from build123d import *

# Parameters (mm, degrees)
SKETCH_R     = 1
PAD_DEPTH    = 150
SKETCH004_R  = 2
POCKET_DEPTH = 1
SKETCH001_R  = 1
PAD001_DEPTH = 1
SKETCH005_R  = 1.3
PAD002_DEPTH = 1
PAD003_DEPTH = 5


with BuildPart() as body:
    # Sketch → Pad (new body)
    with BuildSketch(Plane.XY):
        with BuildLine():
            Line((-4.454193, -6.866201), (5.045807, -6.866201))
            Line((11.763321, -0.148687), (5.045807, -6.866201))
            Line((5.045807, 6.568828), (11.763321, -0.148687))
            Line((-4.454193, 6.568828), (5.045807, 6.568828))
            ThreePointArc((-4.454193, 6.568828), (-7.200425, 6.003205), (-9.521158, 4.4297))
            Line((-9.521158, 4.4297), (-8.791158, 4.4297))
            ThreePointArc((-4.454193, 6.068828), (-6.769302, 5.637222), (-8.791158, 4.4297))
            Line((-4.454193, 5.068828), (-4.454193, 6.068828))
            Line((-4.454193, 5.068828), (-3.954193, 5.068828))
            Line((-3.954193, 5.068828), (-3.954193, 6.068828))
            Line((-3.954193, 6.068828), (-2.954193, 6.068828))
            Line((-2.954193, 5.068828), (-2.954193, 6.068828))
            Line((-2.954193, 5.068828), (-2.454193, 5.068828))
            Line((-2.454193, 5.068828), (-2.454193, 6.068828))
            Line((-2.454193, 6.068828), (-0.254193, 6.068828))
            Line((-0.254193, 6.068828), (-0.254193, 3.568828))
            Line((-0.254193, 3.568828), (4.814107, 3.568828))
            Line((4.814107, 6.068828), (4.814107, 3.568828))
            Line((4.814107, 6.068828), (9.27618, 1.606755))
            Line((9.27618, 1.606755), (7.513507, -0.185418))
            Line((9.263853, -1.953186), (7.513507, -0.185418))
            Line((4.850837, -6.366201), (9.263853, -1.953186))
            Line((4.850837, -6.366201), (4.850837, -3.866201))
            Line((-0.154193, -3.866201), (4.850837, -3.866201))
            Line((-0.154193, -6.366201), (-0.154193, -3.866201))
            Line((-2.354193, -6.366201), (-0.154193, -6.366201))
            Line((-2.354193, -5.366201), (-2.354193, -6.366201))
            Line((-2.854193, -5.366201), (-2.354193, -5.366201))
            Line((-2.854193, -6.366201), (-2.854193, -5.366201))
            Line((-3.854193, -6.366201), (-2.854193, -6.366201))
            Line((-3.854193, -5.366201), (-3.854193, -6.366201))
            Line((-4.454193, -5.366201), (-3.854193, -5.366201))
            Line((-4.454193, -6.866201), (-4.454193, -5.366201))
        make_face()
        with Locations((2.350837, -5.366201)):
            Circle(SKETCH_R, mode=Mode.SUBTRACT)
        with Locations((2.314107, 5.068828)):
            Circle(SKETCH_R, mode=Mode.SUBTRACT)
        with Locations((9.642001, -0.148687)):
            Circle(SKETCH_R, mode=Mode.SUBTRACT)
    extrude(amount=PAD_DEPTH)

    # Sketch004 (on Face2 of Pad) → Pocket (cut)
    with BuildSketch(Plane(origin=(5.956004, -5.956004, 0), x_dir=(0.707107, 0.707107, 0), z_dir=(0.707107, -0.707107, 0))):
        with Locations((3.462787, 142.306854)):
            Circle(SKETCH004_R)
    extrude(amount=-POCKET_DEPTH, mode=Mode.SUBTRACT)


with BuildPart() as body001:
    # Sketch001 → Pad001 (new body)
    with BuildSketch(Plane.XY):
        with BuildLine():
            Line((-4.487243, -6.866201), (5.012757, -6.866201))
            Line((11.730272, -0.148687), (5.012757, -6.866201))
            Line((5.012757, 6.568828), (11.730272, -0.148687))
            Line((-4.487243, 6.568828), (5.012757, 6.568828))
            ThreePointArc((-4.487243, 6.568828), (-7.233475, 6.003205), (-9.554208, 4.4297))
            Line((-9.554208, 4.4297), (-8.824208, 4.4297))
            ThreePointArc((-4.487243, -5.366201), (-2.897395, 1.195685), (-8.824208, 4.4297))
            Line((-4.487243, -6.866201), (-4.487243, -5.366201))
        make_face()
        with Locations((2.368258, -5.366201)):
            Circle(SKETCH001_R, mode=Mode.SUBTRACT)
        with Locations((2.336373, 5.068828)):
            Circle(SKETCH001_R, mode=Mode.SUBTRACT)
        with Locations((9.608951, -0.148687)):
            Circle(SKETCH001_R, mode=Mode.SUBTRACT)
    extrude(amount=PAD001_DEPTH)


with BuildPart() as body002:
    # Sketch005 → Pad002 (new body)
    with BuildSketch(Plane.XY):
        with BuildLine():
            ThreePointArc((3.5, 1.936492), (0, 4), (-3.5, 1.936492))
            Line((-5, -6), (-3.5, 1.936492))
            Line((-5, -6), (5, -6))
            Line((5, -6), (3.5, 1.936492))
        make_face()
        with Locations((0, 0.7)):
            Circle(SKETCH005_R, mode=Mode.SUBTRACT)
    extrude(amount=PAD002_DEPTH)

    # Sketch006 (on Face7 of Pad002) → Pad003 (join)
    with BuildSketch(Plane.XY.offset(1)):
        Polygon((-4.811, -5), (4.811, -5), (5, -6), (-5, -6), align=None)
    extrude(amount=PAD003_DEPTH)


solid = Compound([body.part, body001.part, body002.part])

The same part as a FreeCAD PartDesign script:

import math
import FreeCAD as App
import Part
import Sketcher
from FreeCAD import Vector

doc = App.newDocument("Part")
body = doc.addObject("PartDesign::Body", "Body")

# Sketch on XY plane
sketch1 = body.newObject("Sketcher::SketchObject", "Sketch")
sketch1.AttachmentSupport = (doc.getObject("XY_Plane"), [""])
sketch1.MapMode = "FlatFace"
sketch1.addGeometry([
    Part.LineSegment(Vector(-4.454193, -6.866201, 0), Vector(5.045807, -6.866201, 0)),  # 0
    Part.LineSegment(Vector(5.045807, -6.866201, 0), Vector(11.763321, -0.148687, 0)),  # 1
    Part.LineSegment(Vector(11.763321, -0.148687, 0), Vector(5.045807, 6.568828, 0)),  # 2
    Part.LineSegment(Vector(5.045807, 6.568828, 0), Vector(-4.454193, 6.568828, 0)),  # 3
    Part.ArcOfCircle(Part.Circle(Vector(-4.40552, -0.617104, 0), Vector(0, 0, 1), 7.186097), math.radians(90.388083), math.radians(135.388083)),  # 4
    Part.LineSegment(Vector(-9.521158, 4.4297, 0), Vector(-8.791158, 4.4297, 0)),  # 5
    Part.ArcOfCircle(Part.Circle(Vector(-4.405522, -0.617098, 0), Vector(0, 0, 1), 6.686103), math.radians(90.417085), math.radians(130.99044)),  # 6
    Part.LineSegment(Vector(-4.454193, 6.068828, 0), Vector(-4.454193, 5.068828, 0)),  # 7
    Part.LineSegment(Vector(-4.454193, 5.068828, 0), Vector(-3.954193, 5.068828, 0)),  # 8
    Part.LineSegment(Vector(-3.954193, 5.068828, 0), Vector(-3.954193, 6.068828, 0)),  # 9
    Part.LineSegment(Vector(-3.954193, 6.068828, 0), Vector(-2.954193, 6.068828, 0)),  # 10
    Part.LineSegment(Vector(-2.954193, 6.068828, 0), Vector(-2.954193, 5.068828, 0)),  # 11
    Part.LineSegment(Vector(-2.954193, 5.068828, 0), Vector(-2.454193, 5.068828, 0)),  # 12
    Part.LineSegment(Vector(-2.454193, 5.068828, 0), Vector(-2.454193, 6.068828, 0)),  # 13
    Part.LineSegment(Vector(-2.454193, 6.068828, 0), Vector(-0.254193, 6.068828, 0)),  # 14
    Part.LineSegment(Vector(-0.254193, 6.068828, 0), Vector(-0.254193, 3.568828, 0)),  # 15
    Part.LineSegment(Vector(-0.254193, 3.568828, 0), Vector(4.814107, 3.568828, 0)),  # 16
    Part.LineSegment(Vector(4.814107, 3.568828, 0), Vector(4.814107, 6.068828, 0)),  # 17
    Part.LineSegment(Vector(4.814107, 6.068828, 0), Vector(9.27618, 1.606755, 0)),  # 18
    Part.LineSegment(Vector(9.27618, 1.606755, 0), Vector(7.513507, -0.185418, 0)),  # 19
    Part.LineSegment(Vector(7.513507, -0.185418, 0), Vector(9.263853, -1.953186, 0)),  # 20
    Part.LineSegment(Vector(9.263853, -1.953186, 0), Vector(4.850837, -6.366201, 0)),  # 21
    Part.LineSegment(Vector(4.850837, -6.366201, 0), Vector(4.850837, -3.866201, 0)),  # 22
    Part.LineSegment(Vector(4.850837, -3.866201, 0), Vector(-0.154193, -3.866201, 0)),  # 23
    Part.LineSegment(Vector(-0.154193, -3.866201, 0), Vector(-0.154193, -6.366201, 0)),  # 24
    Part.LineSegment(Vector(-0.154193, -6.366201, 0), Vector(-2.354193, -6.366201, 0)),  # 25
    Part.LineSegment(Vector(-2.354193, -6.366201, 0), Vector(-2.354193, -5.366201, 0)),  # 26
    Part.LineSegment(Vector(-2.354193, -5.366201, 0), Vector(-2.854193, -5.366201, 0)),  # 27
    Part.LineSegment(Vector(-2.854193, -5.366201, 0), Vector(-2.854193, -6.366201, 0)),  # 28
    Part.LineSegment(Vector(-2.854193, -6.366201, 0), Vector(-3.854193, -6.366201, 0)),  # 29
    Part.LineSegment(Vector(-3.854193, -6.366201, 0), Vector(-3.854193, -5.366201, 0)),  # 30
    Part.LineSegment(Vector(-3.854193, -5.366201, 0), Vector(-4.454193, -5.366201, 0)),  # 31
    Part.LineSegment(Vector(-4.454193, -5.366201, 0), Vector(-4.454193, -6.866201, 0)),  # 32
    Part.Circle(Vector(2.350837, -5.366201, 0), Vector(0, 0, 1), 1),  # 33
    Part.Circle(Vector(9.642001, -0.148687, 0), Vector(0, 0, 1), 1),  # 34
    Part.Circle(Vector(2.314107, 5.068828, 0), Vector(0, 0, 1), 1),  # 35
], False)
sketch1.addConstraint([
    Sketcher.Constraint("Coincident", 0, 2, 1, 1),
    Sketcher.Constraint("Coincident", 1, 2, 2, 1),
    Sketcher.Constraint("Coincident", 2, 2, 3, 1),
    Sketcher.Constraint("Coincident", 3, 2, 4, 1),
    Sketcher.Constraint("Coincident", 4, 2, 5, 1),
    Sketcher.Constraint("Coincident", 5, 2, 6, 2),
    Sketcher.Constraint("Coincident", 6, 1, 7, 1),
    Sketcher.Constraint("Coincident", 7, 2, 8, 1),
    Sketcher.Constraint("Coincident", 8, 2, 9, 1),
    Sketcher.Constraint("Coincident", 9, 2, 10, 1),
    Sketcher.Constraint("Coincident", 10, 2, 11, 1),
    Sketcher.Constraint("Coincident", 11, 2, 12, 1),
    Sketcher.Constraint("Coincident", 12, 2, 13, 1),
    Sketcher.Constraint("Coincident", 13, 2, 14, 1),
    Sketcher.Constraint("Coincident", 14, 2, 15, 1),
    Sketcher.Constraint("Coincident", 15, 2, 16, 1),
    Sketcher.Constraint("Coincident", 16, 2, 17, 1),
    Sketcher.Constraint("Coincident", 17, 2, 18, 1),
    Sketcher.Constraint("Coincident", 18, 2, 19, 1),
    Sketcher.Constraint("Coincident", 19, 2, 20, 1),
    Sketcher.Constraint("Coincident", 20, 2, 21, 1),
    Sketcher.Constraint("Coincident", 21, 2, 22, 1),
    Sketcher.Constraint("Coincident", 22, 2, 23, 1),
    Sketcher.Constraint("Coincident", 23, 2, 24, 1),
    Sketcher.Constraint("Coincident", 24, 2, 25, 1),
    Sketcher.Constraint("Coincident", 25, 2, 26, 1),
    Sketcher.Constraint("Coincident", 26, 2, 27, 1),
    Sketcher.Constraint("Coincident", 27, 2, 28, 1),
    Sketcher.Constraint("Coincident", 28, 2, 29, 1),
    Sketcher.Constraint("Coincident", 29, 2, 30, 1),
    Sketcher.Constraint("Coincident", 30, 2, 31, 1),
    Sketcher.Constraint("Coincident", 31, 2, 32, 1),
    Sketcher.Constraint("Coincident", 32, 2, 0, 1),
    Sketcher.Constraint("Horizontal", 0),
    Sketcher.Constraint("Horizontal", 3),
    Sketcher.Constraint("Horizontal", 5),
    Sketcher.Constraint("Vertical", 7),
    Sketcher.Constraint("Horizontal", 8),
    Sketcher.Constraint("Vertical", 9),
    Sketcher.Constraint("Horizontal", 10),
    Sketcher.Constraint("Vertical", 11),
    Sketcher.Constraint("Horizontal", 12),
    Sketcher.Constraint("Vertical", 13),
    Sketcher.Constraint("Horizontal", 14),
    Sketcher.Constraint("Vertical", 15),
    Sketcher.Constraint("Horizontal", 16),
    Sketcher.Constraint("Vertical", 17),
    Sketcher.Constraint("Vertical", 22),
    Sketcher.Constraint("Horizontal", 23),
    Sketcher.Constraint("Vertical", 24),
    Sketcher.Constraint("Horizontal", 25),
    Sketcher.Constraint("Vertical", 26),
    Sketcher.Constraint("Horizontal", 27),
    Sketcher.Constraint("Vertical", 28),
    Sketcher.Constraint("Horizontal", 29),
    Sketcher.Constraint("Vertical", 30),
    Sketcher.Constraint("Horizontal", 31),
    Sketcher.Constraint("Vertical", 32),
    Sketcher.Constraint("Coincident", 6, 3, 4, 3),
    Sketcher.Constraint("Diameter", 33, 2.0),
    Sketcher.Constraint("Diameter", 34, 2.0),
    Sketcher.Constraint("Diameter", 35, 2.0),
    Sketcher.Constraint("DistanceX", 10, 1, 10, 2, 1.0),
    Sketcher.Constraint("DistanceX", 29, 2, 29, 1, 1.0),
    Sketcher.Constraint("DistanceY", 7, 2, 7, 1, 1.0),
    Sketcher.Constraint("DistanceY", 9, 1, 9, 2, 1.0),
    Sketcher.Constraint("DistanceY", 11, 2, 11, 1, 1.0),
    Sketcher.Constraint("DistanceY", 13, 1, 13, 2, 1.0),
    Sketcher.Constraint("DistanceY", 26, 1, 26, 2, 1.0),
    Sketcher.Constraint("DistanceY", 28, 2, 28, 1, 1.0),
    Sketcher.Constraint("DistanceY", 30, 1, 30, 2, 1.0),
    Sketcher.Constraint("DistanceX", 0, 1, 0, 2, 9.5),
    Sketcher.Constraint("DistanceX", 3, 2, 3, 1, 9.5),
    Sketcher.Constraint("DistanceX", 8, 1, 8, 2, 0.5),
    Sketcher.Constraint("DistanceX", 12, 1, 12, 2, 0.5),
    Sketcher.Constraint("DistanceX", 14, 1, 14, 2, 2.2),
    Sketcher.Constraint("DistanceX", 25, 2, 25, 1, 2.2),
    Sketcher.Constraint("DistanceX", 27, 2, 27, 1, 0.5),
    Sketcher.Constraint("DistanceX", 31, 2, 31, 1, 0.6),
    Sketcher.Constraint("DistanceY", 15, 2, 15, 1, 2.5),
    Sketcher.Constraint("DistanceY", 17, 1, 17, 2, 2.5),
    Sketcher.Constraint("DistanceY", 22, 1, 22, 2, 2.5),
    Sketcher.Constraint("DistanceY", 24, 2, 24, 1, 2.5),
    Sketcher.Constraint("DistanceY", 32, 2, 32, 1, 1.5),
    Sketcher.Constraint("DistanceY", 35, 3, 14, 2, 1.0),
    Sketcher.Constraint("DistanceY", 16, 2, 2, 2, 3.0),
    Sketcher.Constraint("DistanceY", 21, 2, 33, 3, 1.0),
    Sketcher.Constraint("Distance", 1, 9.499999),
    Sketcher.Constraint("Distance", 2, 9.5),
    Sketcher.Constraint("DistanceX", 5, 1, 5, 2, 0.73),
    Sketcher.Constraint("DistanceX", 3, 2, 8, 2, 0.5),
    Sketcher.Constraint("DistanceX", 35, 3, 16, 2, 2.5),
    Sketcher.Constraint("DistanceX", 33, 3, 21, 2, 2.5),
    Sketcher.Constraint("DistanceX", 16, 1, 16, 2, 5.0683),
    Sketcher.Constraint("DistanceX", -1, 1, 34, 3, 9.642001),
    Sketcher.Constraint("Radius", 4, 7.186097),
    Sketcher.Constraint("DistanceX", 23, 2, 23, 1, 5.00503),
    Sketcher.Constraint("DistanceY", 33, 3, -1, 1, 5.366201),
    Sketcher.Constraint("DistanceY", -1, 1, 4, 2, 4.4297),
    Sketcher.Constraint("DistanceX", 35, 3, 0, 2, 2.7317),
    Sketcher.Constraint("DistanceX", 16, 2, 19, 2, 2.6994),
    Sketcher.Constraint("DistanceY", 20, 2, 34, 3, 1.804499),
    Sketcher.Constraint("DistanceY", 20, 2, 1, 2, 1.804499),
    Sketcher.Constraint("DistanceX", 4, 3, -1, 1, 4.40552),
    Sketcher.Constraint("DistanceX", -1, 1, 1, 2, 11.763321),
    Sketcher.Constraint("DistanceX", -1, 1, 18, 2, 9.27618),
    Sketcher.Constraint("DistanceY", 19, 2, 34, 3, 0.036731),
    Sketcher.Constraint("DistanceX", 20, 2, 34, 3, 0.378148),
    Sketcher.Constraint("DistanceY", 20, 2, 18, 2, 3.559941),
])
pad1 = body.newObject("PartDesign::Pad", "Pad")
pad1.Profile = sketch1
pad1.Length = 150

# Sketch on an angled plane
sketch2 = body.newObject("Sketcher::SketchObject", "Sketch001")
sketch2.Placement = App.Placement(Vector(5.956004, -5.956004, 0), App.Rotation(Vector(0.707106781, 0.707106781, 0), Vector(0, 0, 0.999999999), Vector(0.707106781, -0.707106781, 0), "ZXY"))
sketch2.addGeometry(Part.Circle(Vector(3.462787, 142.306854, 0), Vector(0, 0, 1), 2), False)
sketch2.addConstraint([
    Sketcher.Constraint("Diameter", 0, 4.0),
    Sketcher.Constraint("DistanceX", -1, 1, 0, 3, 3.462787),
    Sketcher.Constraint("DistanceY", -1, 1, 0, 3, 142.306854),
])
pocket1 = body.newObject("PartDesign::Pocket", "Pocket")
pocket1.Profile = sketch2
pocket1.Length = 1
body2 = doc.addObject("PartDesign::Body", "Body001")

# Sketch on XY plane
sketch3 = body2.newObject("Sketcher::SketchObject", "Sketch002")
sketch3.AttachmentSupport = (doc.getObject("XY_Plane001"), [""])
sketch3.MapMode = "FlatFace"
sketch3.addGeometry([
    Part.LineSegment(Vector(-4.487243, -6.866201, 0), Vector(5.012757, -6.866201, 0)),  # 0
    Part.LineSegment(Vector(5.012757, -6.866201, 0), Vector(11.730272, -0.148687, 0)),  # 1
    Part.LineSegment(Vector(11.730272, -0.148687, 0), Vector(5.012757, 6.568828, 0)),  # 2
    Part.LineSegment(Vector(5.012757, 6.568828, 0), Vector(-4.487243, 6.568828, 0)),  # 3
    Part.ArcOfCircle(Part.Circle(Vector(-4.43857, -0.617104, 0), Vector(0, 0, 1), 7.186097), math.radians(90.388083), math.radians(135.388083)),  # 4
    Part.LineSegment(Vector(-9.554208, 4.4297, 0), Vector(-8.824208, 4.4297, 0)),  # 5
    Part.ArcOfCircle(Part.Circle(Vector(-7.968126, -1.049293, 0), Vector(0, 0, 1), 5.54547), math.radians(-51.119478), math.radians(98.880548)),  # 6
    Part.LineSegment(Vector(-4.487243, -5.366201, 0), Vector(-4.487243, -6.866201, 0)),  # 7
    Part.Circle(Vector(2.368258, -5.366201, 0), Vector(0, 0, 1), 1),  # 8
    Part.Circle(Vector(9.608951, -0.148687, 0), Vector(0, 0, 1), 1),  # 9
    Part.Circle(Vector(2.336373, 5.068828, 0), Vector(0, 0, 1), 1),  # 10
], False)
sketch3.addConstraint([
    Sketcher.Constraint("Coincident", 0, 2, 1, 1),
    Sketcher.Constraint("Coincident", 1, 2, 2, 1),
    Sketcher.Constraint("Coincident", 2, 2, 3, 1),
    Sketcher.Constraint("Coincident", 3, 2, 4, 1),
    Sketcher.Constraint("Coincident", 4, 2, 5, 1),
    Sketcher.Constraint("Coincident", 5, 2, 6, 2),
    Sketcher.Constraint("Coincident", 6, 1, 7, 1),
    Sketcher.Constraint("Coincident", 7, 2, 0, 1),
    Sketcher.Constraint("Horizontal", 0),
    Sketcher.Constraint("Horizontal", 3),
    Sketcher.Constraint("Horizontal", 5),
    Sketcher.Constraint("Vertical", 7),
    Sketcher.Constraint("Equal", 8, 9),
    Sketcher.Constraint("Equal", 9, 10),
    Sketcher.Constraint("Perpendicular", 1, 2),
    Sketcher.Constraint("Horizontal", 9, 3, 1, 2),
    Sketcher.Constraint("Horizontal", 8, 3, 6, 1),
    Sketcher.Constraint("Vertical", 0, 2, 2, 2),
    Sketcher.Constraint("Vertical", 3, 2, 6, 1),
    Sketcher.Constraint("Equal", 1, 2),
    Sketcher.Constraint("Diameter", 8, 2.0),
    Sketcher.Constraint("DistanceX", 0, 1, 0, 2, 9.5),
    Sketcher.Constraint("DistanceY", 7, 2, 7, 1, 1.5),
    Sketcher.Constraint("Distance", 1, 9.5),
    Sketcher.Constraint("DistanceX", 5, 1, 5, 2, 0.73),
    Sketcher.Constraint("DistanceY", 10, 3, 2, 2, 1.5),
    Sketcher.Constraint("Radius", 6, 5.54547),
    Sketcher.Constraint("Radius", 4, 7.186097),
    Sketcher.Constraint("DistanceY", 8, 3, -1, 1, 5.366201),
    Sketcher.Constraint("DistanceY", -1, 1, 4, 2, 4.4297),
    Sketcher.Constraint("DistanceX", 6, 3, 10, 3, 10.304499),
    Sketcher.Constraint("DistanceX", 8, 3, 0, 2, 2.644499),
    Sketcher.Constraint("DistanceX", 10, 3, 1, 2, 9.393899),
    Sketcher.Constraint("DistanceX", 4, 3, -1, 1, 4.43857),
    Sketcher.Constraint("DistanceX", -1, 1, 9, 3, 9.608951),
])
pad2 = body2.newObject("PartDesign::Pad", "Pad001")
pad2.Profile = sketch3
pad2.Length = 1
body3 = doc.addObject("PartDesign::Body", "Body002")

# Sketch on XY plane
sketch4 = body3.newObject("Sketcher::SketchObject", "Sketch003")
sketch4.AttachmentSupport = (doc.getObject("XY_Plane002"), [""])
sketch4.MapMode = "FlatFace"
sketch4.addGeometry([
    Part.ArcOfCircle(Part.Circle(Vector(0, 0, 0), Vector(0, 0, 1), 4), math.radians(28.955032), math.radians(151.044968)),  # 0
    Part.LineSegment(Vector(-3.5, 1.936492, 0), Vector(-5, -6, 0)),  # 1
    Part.LineSegment(Vector(-5, -6, 0), Vector(5, -6, 0)),  # 2
    Part.LineSegment(Vector(5, -6, 0), Vector(3.5, 1.936492, 0)),  # 3
    Part.Circle(Vector(0, 0.7, 0), Vector(0, 0, 1), 1.3),  # 4
], False)
sketch4.addConstraint([
    Sketcher.Constraint("Coincident", 0, 2, 1, 1),
    Sketcher.Constraint("Coincident", 1, 2, 2, 1),
    Sketcher.Constraint("Coincident", 2, 2, 3, 1),
    Sketcher.Constraint("Coincident", 3, 2, 0, 1),
    Sketcher.Constraint("Horizontal", 2),
    Sketcher.Constraint("Coincident", 0, 3, -1, 1),
    Sketcher.Constraint("PointOnObject", 4, 3, -2),
    Sketcher.Constraint("Horizontal", 0, 2, 3, 2),
    Sketcher.Constraint("Equal", 1, 3),
    Sketcher.Constraint("Radius", 0, 4.0),
    Sketcher.Constraint("Diameter", 4, 2.6),
    Sketcher.Constraint("DistanceX", 2, 1, 2, 2, 10.0),
    Sketcher.Constraint("DistanceY", 1, 2, -1, 1, 6.0),
    Sketcher.Constraint("DistanceX", 0, 2, 3, 2, 7.0),
    Sketcher.Constraint("DistanceY", -1, 1, 4, 3, 0.7),
])
pad3 = body3.newObject("PartDesign::Pad", "Pad002")
pad3.Profile = sketch4
pad3.Length = 1

# Sketch on XY plane
sketch5 = body3.newObject("Sketcher::SketchObject", "Sketch004")
sketch5.AttachmentSupport = (doc.getObject("XY_Plane002"), [""])
sketch5.MapMode = "FlatFace"
sketch5.AttachmentOffset = App.Placement(Vector(0, 0, 1), App.Rotation())
sketch5.addGeometry([
    Part.LineSegment(Vector(4.811, -5, 0), Vector(-4.811, -5, 0)),
    Part.LineSegment(Vector(-4.811, -5, 0), Vector(-5, -6, 0)),
    Part.LineSegment(Vector(-5, -6, 0), Vector(5, -6, 0)),
    Part.LineSegment(Vector(5, -6, 0), Vector(4.811, -5, 0)),
], False)
sketch5.addConstraint([
    Sketcher.Constraint("Coincident", 0, 2, 1, 1),
    Sketcher.Constraint("Coincident", 1, 2, 2, 1),
    Sketcher.Constraint("Coincident", 2, 2, 3, 1),
    Sketcher.Constraint("Coincident", 3, 2, 0, 1),
    Sketcher.Constraint("Horizontal", 0),
    Sketcher.Constraint("Horizontal", 2),
    Sketcher.Constraint("Equal", 1, 3),
    Sketcher.Constraint("DistanceX", 2, 1, 2, 2, 10.0),
    Sketcher.Constraint("DistanceY", 0, 2, -1, 1, 5.0),
    Sketcher.Constraint("DistanceX", 1, 2, -1, 1, 5.0),
    Sketcher.Constraint("DistanceY", 1, 2, -1, 1, 6.0),
    Sketcher.Constraint("DistanceX", 0, 2, 0, 1, 9.622),
])
pad4 = body3.newObject("PartDesign::Pad", "Pad003")
pad4.Profile = sketch5
pad4.Length = 5

doc.recompute()
